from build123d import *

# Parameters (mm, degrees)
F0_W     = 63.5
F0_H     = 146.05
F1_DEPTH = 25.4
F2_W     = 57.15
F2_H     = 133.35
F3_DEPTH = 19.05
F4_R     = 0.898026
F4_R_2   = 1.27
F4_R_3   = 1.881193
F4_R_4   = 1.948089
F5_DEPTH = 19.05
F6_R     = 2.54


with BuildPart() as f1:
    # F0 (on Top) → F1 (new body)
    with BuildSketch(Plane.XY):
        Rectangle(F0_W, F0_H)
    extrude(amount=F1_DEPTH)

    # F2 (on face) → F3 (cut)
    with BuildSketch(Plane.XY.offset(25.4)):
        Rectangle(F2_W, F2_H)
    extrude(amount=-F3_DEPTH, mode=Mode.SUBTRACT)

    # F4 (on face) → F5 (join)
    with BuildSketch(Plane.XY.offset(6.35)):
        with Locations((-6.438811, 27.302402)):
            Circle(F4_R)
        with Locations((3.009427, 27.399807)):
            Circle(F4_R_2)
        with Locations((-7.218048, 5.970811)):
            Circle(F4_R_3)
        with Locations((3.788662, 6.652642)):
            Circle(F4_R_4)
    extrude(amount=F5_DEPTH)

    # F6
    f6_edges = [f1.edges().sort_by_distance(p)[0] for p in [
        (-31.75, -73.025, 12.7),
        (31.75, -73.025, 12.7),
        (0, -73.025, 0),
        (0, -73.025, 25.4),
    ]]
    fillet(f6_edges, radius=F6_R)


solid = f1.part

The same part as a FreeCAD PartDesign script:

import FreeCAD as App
import Part
import Sketcher
Q = App.Units.Quantity


def edges_at(feature, points):
    """Names of the edges that pass closest to the given points."""
    edges = feature.Shape.Edges
    near = lambda p: min(range(len(edges)), key=lambda i: edges[i].distToShape(Part.Vertex(*p))[0])
    return sorted({f"Edge{near(p) + 1}" for p in points})


def add_polygon(sketch, points):
    """Adds a closed chain of lines whose ends are joined by coincident constraints."""
    first, n = sketch.GeometryCount, len(points)
    for a, b in zip(points, points[1:] + points[:1]):
        sketch.addGeometry(Part.LineSegment(App.Vector(*a, 0), App.Vector(*b, 0)), False)
    for i in range(n):
        sketch.addConstraint(Sketcher.Constraint("Coincident", first + i, 2, first + (i + 1) % n, 1))

doc = App.newDocument("Part")
body = doc.addObject("PartDesign::Body", "Body")

sketch1 = doc.addObject("Sketcher::SketchObject", "Sketch")
body.addObject(sketch1)
sketch1.AttachmentSupport = (doc.XY_Plane, [""])
sketch1.MapMode = "FlatFace"
add_polygon(sketch1, [(-31.75, 73.025), (-31.75, -73.025), (31.75, -73.025), (31.75, 73.025)])
sketch1.addConstraint(Sketcher.Constraint("Vertical", 0))
sketch1.addConstraint(Sketcher.Constraint("Horizontal", 1))
sketch1.addConstraint(Sketcher.Constraint("Vertical", 2))
sketch1.addConstraint(Sketcher.Constraint("Horizontal", 3))
sketch1.addConstraint(Sketcher.Constraint("Symmetric", 0, 2, 2, 2, -1, 1))
sketch1.addConstraint(Sketcher.Constraint("DistanceX", 1, 1, 1, 2, Q("2.5 in")))
sketch1.addConstraint(Sketcher.Constraint("DistanceY", 0, 2, 0, 1, Q("5.75 in")))
pad1 = doc.addObject("PartDesign::Pad", "Pad")
body.addObject(pad1)
pad1.Profile = sketch1
pad1.Length = Q("1 in")

sketch2 = doc.addObject("Sketcher::SketchObject", "Sketch001")
body.addObject(sketch2)
sketch2.AttachmentSupport = (doc.XY_Plane, [""])
sketch2.MapMode = "FlatFace"
sketch2.AttachmentOffset = App.Placement(App.Vector(0, 0, 1 * 25.4), App.Rotation())
add_polygon(sketch2, [(-28.575, 66.675), (-28.575, -66.675), (28.575, -66.675), (28.575, 66.675)])
sketch2.addConstraint(Sketcher.Constraint("Vertical", 0))
sketch2.addConstraint(Sketcher.Constraint("Horizontal", 1))
sketch2.addConstraint(Sketcher.Constraint("Vertical", 2))
sketch2.addConstraint(Sketcher.Constraint("Horizontal", 3))
sketch2.addConstraint(Sketcher.Constraint("Symmetric", 0, 2, 2, 2, -1, 1))
sketch2.addConstraint(Sketcher.Constraint("DistanceX", 1, 1, 1, 2, Q("2.25 in")))
sketch2.addConstraint(Sketcher.Constraint("DistanceY", 0, 2, 0, 1, Q("5.25 in")))
pocket1 = doc.addObject("PartDesign::Pocket", "Pocket")
body.addObject(pocket1)
pocket1.Profile = sketch2
pocket1.Length = Q("0.75 in")

sketch3 = doc.addObject("Sketcher::SketchObject", "Sketch002")
body.addObject(sketch3)
sketch3.AttachmentSupport = (doc.XY_Plane, [""])
sketch3.MapMode = "FlatFace"
sketch3.AttachmentOffset = App.Placement(App.Vector(0, 0, 0.25 * 25.4), App.Rotation())
sketch3.addGeometry(Part.Circle(App.Vector(-6.438811, 27.302402, 0), App.Vector(0, 0, 1), 0.898026), False)
sketch3.addGeometry(Part.Circle(App.Vector(3.009427, 27.399807, 0), App.Vector(0, 0, 1), 1.27), False)
sketch3.addGeometry(Part.Circle(App.Vector(-7.218048, 5.970811, 0), App.Vector(0, 0, 1), 1.881193), False)
sketch3.addGeometry(Part.Circle(App.Vector(3.788662, 6.652642, 0), App.Vector(0, 0, 1), 1.948089), False)
sketch3.addConstraint(Sketcher.Constraint("Diameter", 1, Q("0.1 in")))
sketch3.addConstraint(Sketcher.Constraint("Diameter", 0, Q("1.796052 mm")))
sketch3.addConstraint(Sketcher.Constraint("Diameter", 2, Q("3.762386 mm")))
sketch3.addConstraint(Sketcher.Constraint("Diameter", 3, Q("3.896178 mm")))
sketch3.addConstraint(Sketcher.Constraint("DistanceX", 0, 3, -1, 1, Q("6.438811 mm")))
sketch3.addConstraint(Sketcher.Constraint("DistanceY", -1, 1, 2, 3, Q("5.970811 mm")))
sketch3.addConstraint(Sketcher.Constraint("DistanceX", -1, 1, 3, 3, Q("3.788662 mm")))
sketch3.addConstraint(Sketcher.Constraint("DistanceY", 2, 3, 0, 3, Q("21.331591 mm")))
sketch3.addConstraint(Sketcher.Constraint("DistanceX", 2, 3, 3, 3, Q("11.00671 mm")))
sketch3.addConstraint(Sketcher.Constraint("DistanceY", 2, 3, 3, 3, Q("0.681831 mm")))
sketch3.addConstraint(Sketcher.Constraint("DistanceX", -1, 1, 1, 3, Q("3.009427 mm")))
sketch3.addConstraint(Sketcher.Constraint("DistanceY", -1, 1, 1, 3, Q("27.399807 mm")))
pad2 = doc.addObject("PartDesign::Pad", "Pad001")
body.addObject(pad2)
pad2.Profile = sketch3
pad2.Length = Q("0.75 in")
doc.recompute()

fillet = doc.addObject("PartDesign::Fillet", "Fillet")
body.addObject(fillet)
fillet.Base = (pad2, edges_at(pad2, [
    (-31.75, -73.025, 12.7),
    (31.75, -73.025, 12.7),
    (0, -73.025, 0),
    (0, -73.025, 25.4),
]))
fillet.Radius = Q("0.1 in")

doc.recompute()
